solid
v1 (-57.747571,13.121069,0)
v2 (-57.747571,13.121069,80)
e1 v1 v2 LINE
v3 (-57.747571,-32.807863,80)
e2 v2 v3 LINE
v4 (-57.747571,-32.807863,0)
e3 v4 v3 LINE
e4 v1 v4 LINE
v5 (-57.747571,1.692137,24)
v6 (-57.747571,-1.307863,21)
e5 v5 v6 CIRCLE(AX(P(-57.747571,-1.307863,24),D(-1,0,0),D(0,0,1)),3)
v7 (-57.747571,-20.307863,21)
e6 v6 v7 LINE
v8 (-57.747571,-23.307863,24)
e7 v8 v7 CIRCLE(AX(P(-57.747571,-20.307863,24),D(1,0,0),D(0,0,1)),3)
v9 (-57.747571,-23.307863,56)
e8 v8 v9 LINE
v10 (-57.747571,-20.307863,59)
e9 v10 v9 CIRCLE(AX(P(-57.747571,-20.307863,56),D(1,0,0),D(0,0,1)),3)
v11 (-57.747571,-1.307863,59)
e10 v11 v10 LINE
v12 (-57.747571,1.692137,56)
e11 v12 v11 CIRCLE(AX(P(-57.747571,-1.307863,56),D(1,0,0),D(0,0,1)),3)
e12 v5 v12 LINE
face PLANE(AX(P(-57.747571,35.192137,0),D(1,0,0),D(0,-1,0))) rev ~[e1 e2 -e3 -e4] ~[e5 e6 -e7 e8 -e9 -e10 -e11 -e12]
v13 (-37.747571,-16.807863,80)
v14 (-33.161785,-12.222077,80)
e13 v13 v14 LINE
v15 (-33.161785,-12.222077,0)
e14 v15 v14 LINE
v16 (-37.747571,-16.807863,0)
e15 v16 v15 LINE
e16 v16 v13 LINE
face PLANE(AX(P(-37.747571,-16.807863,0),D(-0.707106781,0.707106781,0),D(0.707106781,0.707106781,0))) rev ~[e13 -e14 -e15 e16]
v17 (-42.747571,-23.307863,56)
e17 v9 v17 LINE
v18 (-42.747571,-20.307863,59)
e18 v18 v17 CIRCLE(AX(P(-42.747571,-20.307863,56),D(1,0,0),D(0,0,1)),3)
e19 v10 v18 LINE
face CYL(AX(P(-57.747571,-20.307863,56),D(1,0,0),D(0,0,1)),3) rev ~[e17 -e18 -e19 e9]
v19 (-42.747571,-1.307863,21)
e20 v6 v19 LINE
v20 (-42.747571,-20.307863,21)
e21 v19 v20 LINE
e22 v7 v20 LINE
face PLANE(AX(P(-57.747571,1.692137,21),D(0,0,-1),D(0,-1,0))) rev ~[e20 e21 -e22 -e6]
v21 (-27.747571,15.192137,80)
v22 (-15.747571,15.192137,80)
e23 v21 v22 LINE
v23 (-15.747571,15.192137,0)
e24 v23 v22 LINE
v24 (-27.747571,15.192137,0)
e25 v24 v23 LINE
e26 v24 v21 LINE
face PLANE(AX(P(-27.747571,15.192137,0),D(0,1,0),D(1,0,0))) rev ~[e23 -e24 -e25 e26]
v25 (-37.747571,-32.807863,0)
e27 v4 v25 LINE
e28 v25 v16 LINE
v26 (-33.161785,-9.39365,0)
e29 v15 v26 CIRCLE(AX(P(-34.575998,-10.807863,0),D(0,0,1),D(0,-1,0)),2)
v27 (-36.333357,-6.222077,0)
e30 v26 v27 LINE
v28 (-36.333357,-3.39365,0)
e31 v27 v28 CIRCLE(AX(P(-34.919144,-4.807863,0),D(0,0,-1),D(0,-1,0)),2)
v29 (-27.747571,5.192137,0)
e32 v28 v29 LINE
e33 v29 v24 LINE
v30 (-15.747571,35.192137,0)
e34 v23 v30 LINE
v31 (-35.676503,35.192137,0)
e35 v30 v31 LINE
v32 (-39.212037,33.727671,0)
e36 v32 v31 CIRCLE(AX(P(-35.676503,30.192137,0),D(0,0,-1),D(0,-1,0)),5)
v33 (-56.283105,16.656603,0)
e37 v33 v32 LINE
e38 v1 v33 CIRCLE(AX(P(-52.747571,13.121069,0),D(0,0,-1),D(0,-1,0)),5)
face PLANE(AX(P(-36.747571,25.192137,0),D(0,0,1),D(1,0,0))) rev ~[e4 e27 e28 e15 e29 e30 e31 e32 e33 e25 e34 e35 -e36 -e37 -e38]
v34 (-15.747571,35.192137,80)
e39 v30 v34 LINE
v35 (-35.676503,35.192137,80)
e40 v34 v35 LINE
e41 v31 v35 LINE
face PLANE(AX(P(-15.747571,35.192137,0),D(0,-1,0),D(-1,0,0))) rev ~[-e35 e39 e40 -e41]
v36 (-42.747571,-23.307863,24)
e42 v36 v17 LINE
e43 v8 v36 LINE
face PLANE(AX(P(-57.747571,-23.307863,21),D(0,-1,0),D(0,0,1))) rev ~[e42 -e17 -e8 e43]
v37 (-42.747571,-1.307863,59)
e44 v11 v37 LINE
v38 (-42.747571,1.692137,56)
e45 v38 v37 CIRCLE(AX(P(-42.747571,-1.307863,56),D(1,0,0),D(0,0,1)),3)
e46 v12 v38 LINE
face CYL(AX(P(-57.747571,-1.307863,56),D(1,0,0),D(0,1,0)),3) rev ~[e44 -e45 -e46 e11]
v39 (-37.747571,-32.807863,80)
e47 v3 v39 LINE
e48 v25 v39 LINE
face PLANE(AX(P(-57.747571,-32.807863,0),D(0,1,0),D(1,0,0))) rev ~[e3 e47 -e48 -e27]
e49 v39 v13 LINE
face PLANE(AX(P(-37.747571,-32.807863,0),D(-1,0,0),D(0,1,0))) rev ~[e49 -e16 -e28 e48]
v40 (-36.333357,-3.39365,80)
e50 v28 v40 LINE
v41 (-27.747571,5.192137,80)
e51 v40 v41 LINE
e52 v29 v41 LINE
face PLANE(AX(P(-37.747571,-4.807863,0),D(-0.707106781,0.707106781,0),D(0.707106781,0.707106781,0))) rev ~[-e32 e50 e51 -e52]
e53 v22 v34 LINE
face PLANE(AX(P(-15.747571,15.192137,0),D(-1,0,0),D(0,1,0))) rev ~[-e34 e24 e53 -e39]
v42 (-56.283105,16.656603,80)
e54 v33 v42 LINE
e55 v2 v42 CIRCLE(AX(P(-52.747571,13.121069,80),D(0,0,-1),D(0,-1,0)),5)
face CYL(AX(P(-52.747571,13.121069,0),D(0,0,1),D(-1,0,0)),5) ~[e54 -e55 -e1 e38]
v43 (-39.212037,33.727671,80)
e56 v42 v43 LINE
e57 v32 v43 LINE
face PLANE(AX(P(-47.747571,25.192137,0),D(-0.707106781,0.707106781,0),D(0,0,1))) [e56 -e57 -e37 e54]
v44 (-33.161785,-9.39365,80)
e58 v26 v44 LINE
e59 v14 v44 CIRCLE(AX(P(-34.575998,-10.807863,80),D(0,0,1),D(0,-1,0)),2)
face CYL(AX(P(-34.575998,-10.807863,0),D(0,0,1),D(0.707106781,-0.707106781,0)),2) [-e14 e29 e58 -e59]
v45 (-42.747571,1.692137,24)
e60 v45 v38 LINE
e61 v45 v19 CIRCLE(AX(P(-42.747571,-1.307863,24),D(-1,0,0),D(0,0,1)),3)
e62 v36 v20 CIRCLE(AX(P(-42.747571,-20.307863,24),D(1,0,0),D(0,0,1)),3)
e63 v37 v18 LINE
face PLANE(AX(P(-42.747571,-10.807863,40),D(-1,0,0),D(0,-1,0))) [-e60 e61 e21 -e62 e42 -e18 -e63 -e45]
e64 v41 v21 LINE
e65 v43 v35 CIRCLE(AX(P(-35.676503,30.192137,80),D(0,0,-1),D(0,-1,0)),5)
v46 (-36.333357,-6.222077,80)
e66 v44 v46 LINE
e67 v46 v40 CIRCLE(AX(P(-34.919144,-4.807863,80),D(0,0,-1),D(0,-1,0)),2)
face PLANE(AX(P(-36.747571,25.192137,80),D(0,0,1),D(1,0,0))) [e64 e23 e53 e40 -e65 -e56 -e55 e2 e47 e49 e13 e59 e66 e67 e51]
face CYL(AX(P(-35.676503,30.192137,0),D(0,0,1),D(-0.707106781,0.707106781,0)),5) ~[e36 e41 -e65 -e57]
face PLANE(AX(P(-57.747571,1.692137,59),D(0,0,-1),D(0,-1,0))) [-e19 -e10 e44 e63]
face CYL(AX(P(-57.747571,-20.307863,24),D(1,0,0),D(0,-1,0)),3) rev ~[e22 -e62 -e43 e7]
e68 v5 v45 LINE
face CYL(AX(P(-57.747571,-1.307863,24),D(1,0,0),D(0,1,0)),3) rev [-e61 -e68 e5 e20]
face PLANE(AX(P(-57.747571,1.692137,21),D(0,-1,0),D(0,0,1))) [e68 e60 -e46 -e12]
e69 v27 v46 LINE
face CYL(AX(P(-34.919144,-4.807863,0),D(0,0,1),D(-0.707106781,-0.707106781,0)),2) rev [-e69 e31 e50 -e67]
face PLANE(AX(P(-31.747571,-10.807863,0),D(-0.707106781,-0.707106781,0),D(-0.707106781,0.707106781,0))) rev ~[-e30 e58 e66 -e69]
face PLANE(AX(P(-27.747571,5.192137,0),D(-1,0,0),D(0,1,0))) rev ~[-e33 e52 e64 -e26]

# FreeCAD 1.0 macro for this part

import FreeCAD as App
import Part
import Sketcher


def edges_at(feature, points):
    """Names of the edges that pass closest to the given points."""
    edges = feature.Shape.Edges
    near = lambda p: min(range(len(edges)), key=lambda i: edges[i].distToShape(Part.Vertex(*p))[0])
    return sorted({f"Edge{near(p) + 1}" for p in points})

doc = App.newDocument("Part")
body = doc.addObject("PartDesign::Body", "Body")

# Sketch on XY plane
sketch1 = doc.addObject("Sketcher::SketchObject", "Sketch")
body.addObject(sketch1)
sketch1.AttachmentSupport = (doc.XY_Plane, [""])
sketch1.MapMode = "FlatFace"
sketch1.addGeometry(Part.LineSegment(App.Vector(-58, 35, 0), App.Vector(-58, -33, 0)), False)
sketch1.addGeometry(Part.LineSegment(App.Vector(-58, -33, 0), App.Vector(-38, -33, 0)), False)
sketch1.addGeometry(Part.LineSegment(App.Vector(-38, -33, 0), App.Vector(-38, -17, 0)), False)
sketch1.addGeometry(Part.LineSegment(App.Vector(-38, -17, 0), App.Vector(-32, -11, 0)), False)
sketch1.addGeometry(Part.LineSegment(App.Vector(-32, -11, 0), App.Vector(-38, -5, 0)), False)
sketch1.addGeometry(Part.LineSegment(App.Vector(-38, -5, 0), App.Vector(-28, 5, 0)), False)
sketch1.addGeometry(Part.LineSegment(App.Vector(-28, 5, 0), App.Vector(-28, 15, 0)), False)
sketch1.addGeometry(Part.LineSegment(App.Vector(-28, 15, 0), App.Vector(-16, 15, 0)), False)
sketch1.addGeometry(Part.LineSegment(App.Vector(-16, 15, 0), App.Vector(-16, 35, 0)), False)
sketch1.addGeometry(Part.LineSegment(App.Vector(-16, 35, 0), App.Vector(-58, 35, 0)), False)
sketch1.addConstraint(Sketcher.Constraint("Coincident", 0, 2, 1, 1))
sketch1.addConstraint(Sketcher.Constraint("Coincident", 1, 2, 2, 1))
sketch1.addConstraint(Sketcher.Constraint("Coincident", 2, 2, 3, 1))
sketch1.addConstraint(Sketcher.Constraint("Coincident", 3, 2, 4, 1))
sketch1.addConstraint(Sketcher.Constraint("Coincident", 4, 2, 5, 1))
sketch1.addConstraint(Sketcher.Constraint("Coincident", 5, 2, 6, 1))
sketch1.addConstraint(Sketcher.Constraint("Coincident", 6, 2, 7, 1))
sketch1.addConstraint(Sketcher.Constraint("Coincident", 7, 2, 8, 1))
sketch1.addConstraint(Sketcher.Constraint("Coincident", 8, 2, 9, 1))
sketch1.addConstraint(Sketcher.Constraint("Coincident", 9, 2, 0, 1))
sketch1.addConstraint(Sketcher.Constraint("Vertical", 0))
sketch1.addConstraint(Sketcher.Constraint("Horizontal", 1))
sketch1.addConstraint(Sketcher.Constraint("Vertical", 2))
sketch1.addConstraint(Sketcher.Constraint("Vertical", 6))
sketch1.addConstraint(Sketcher.Constraint("Horizontal", 7))
sketch1.addConstraint(Sketcher.Constraint("Vertical", 8))
sketch1.addConstraint(Sketcher.Constraint("Horizontal", 9))
sketch1.addConstraint(Sketcher.Constraint("Perpendicular", 3, 4))
sketch1.addConstraint(Sketcher.Constraint("Perpendicular", 4, 5))
sketch1.addConstraint(Sketcher.Constraint("Vertical", 2, 2, 4, 2))
sketch1.addConstraint(Sketcher.Constraint("Equal", 1, 8))
sketch1.addConstraint(Sketcher.Constraint("Equal", 3, 4))
sketch1.addConstraint(Sketcher.Constraint("DistanceX", 1, 1, 1, 2, 20.0))
sketch1.addConstraint(Sketcher.Constraint("DistanceX", 7, 1, 7, 2, 12.0))
sketch1.addConstraint(Sketcher.Constraint("DistanceX", 9, 2, 9, 1, 42.0))
sketch1.addConstraint(Sketcher.Constraint("DistanceY", 0, 2, 0, 1, 68.0))
sketch1.addConstraint(Sketcher.Constraint("DistanceY", 2, 1, 2, 2, 16.0))
sketch1.addConstraint(Sketcher.Constraint("DistanceY", 6, 1, 6, 2, 10.0))
sketch1.addConstraint(Sketcher.Constraint("DistanceX", 0, 2, -1, 1, 57.747571))
sketch1.addConstraint(Sketcher.Constraint("DistanceY", 0, 2, -1, 1, 32.807863))
pad1 = doc.addObject("PartDesign::Pad", "Pad")
body.addObject(pad1)
pad1.Profile = sketch1
pad1.Length = 80
doc.recompute()

fillet = doc.addObject("PartDesign::Fillet", "Fillet")
body.addObject(fillet)
fillet.Base = (pad1, edges_at(pad1, [(-31.748, -10.808, 40)]))
fillet.Radius = 2
doc.recompute()

fillet2 = doc.addObject("PartDesign::Fillet", "Fillet001")
body.addObject(fillet2)
fillet2.Base = (fillet, edges_at(fillet, [(-37.748, -4.808, 40)]))
fillet2.Radius = 2
doc.recompute()

chamfer = doc.addObject("PartDesign::Chamfer", "Chamfer")
body.addObject(chamfer)
chamfer.Base = (fillet2, edges_at(fillet2, [(-57.748, 35.192, 40)]))
chamfer.Size = 20

# Sketch on YZ plane
sketch2 = doc.addObject("Sketcher::SketchObject", "Sketch001")
body.addObject(sketch2)
sketch2.AttachmentSupport = (doc.YZ_Plane, [""])
sketch2.MapMode = "FlatFace"
sketch2.AttachmentOffset = App.Placement(App.Vector(0, 0, -57.747571), App.Rotation())
sketch2.addGeometry(Part.LineSegment(App.Vector(2, 59, 0), App.Vector(2, 21, 0)), False)
sketch2.addGeometry(Part.LineSegment(App.Vector(2, 21, 0), App.Vector(-23, 21, 0)), False)
sketch2.addGeometry(Part.LineSegment(App.Vector(-23, 21, 0), App.Vector(-23, 59, 0)), False)
sketch2.addGeometry(Part.LineSegment(App.Vector(-23, 59, 0), App.Vector(2, 59, 0)), False)
sketch2.addConstraint(Sketcher.Constraint("Coincident", 0, 2, 1, 1))
sketch2.addConstraint(Sketcher.Constraint("Coincident", 1, 2, 2, 1))
sketch2.addConstraint(Sketcher.Constraint("Coincident", 2, 2, 3, 1))
sketch2.addConstraint(Sketcher.Constraint("Coincident", 3, 2, 0, 1))
sketch2.addConstraint(Sketcher.Constraint("Vertical", 0))
sketch2.addConstraint(Sketcher.Constraint("Horizontal", 1))
sketch2.addConstraint(Sketcher.Constraint("Vertical", 2))
sketch2.addConstraint(Sketcher.Constraint("Horizontal", 3))
sketch2.addConstraint(Sketcher.Constraint("DistanceX", 1, 2, 1, 1, 25.0))
sketch2.addConstraint(Sketcher.Constraint("DistanceY", 0, 2, 0, 1, 38.0))
sketch2.addConstraint(Sketcher.Constraint("DistanceY", -1, 1, 0, 2, 21.0))
sketch2.addConstraint(Sketcher.Constraint("DistanceX", -1, 1, 0, 2, 1.692137))
pocket1 = doc.addObject("PartDesign::Pocket", "Pocket")
body.addObject(pocket1)
pocket1.Profile = sketch2
pocket1.Length = 15
pocket1.Reversed = True
doc.recompute()

fillet3 = doc.addObject("PartDesign::Fillet", "Fillet002")
body.addObject(fillet3)
fillet3.Base = (pocket1, edges_at(pocket1, [
    (-50.248, 1.692, 21),
    (-50.248, 1.692, 59),
    (-50.248, -23.308, 59),
    (-50.248, -23.308, 21),
]))
fillet3.Radius = 3
doc.recompute()

fillet4 = doc.addObject("PartDesign::Fillet", "Fillet003")
body.addObject(fillet4)
fillet4.Base = (fillet3, edges_at(fillet3, [(-37.748, 35.192, 40), (-57.748, 15.192, 40)]))
fillet4.Radius = 5

doc.recompute()
